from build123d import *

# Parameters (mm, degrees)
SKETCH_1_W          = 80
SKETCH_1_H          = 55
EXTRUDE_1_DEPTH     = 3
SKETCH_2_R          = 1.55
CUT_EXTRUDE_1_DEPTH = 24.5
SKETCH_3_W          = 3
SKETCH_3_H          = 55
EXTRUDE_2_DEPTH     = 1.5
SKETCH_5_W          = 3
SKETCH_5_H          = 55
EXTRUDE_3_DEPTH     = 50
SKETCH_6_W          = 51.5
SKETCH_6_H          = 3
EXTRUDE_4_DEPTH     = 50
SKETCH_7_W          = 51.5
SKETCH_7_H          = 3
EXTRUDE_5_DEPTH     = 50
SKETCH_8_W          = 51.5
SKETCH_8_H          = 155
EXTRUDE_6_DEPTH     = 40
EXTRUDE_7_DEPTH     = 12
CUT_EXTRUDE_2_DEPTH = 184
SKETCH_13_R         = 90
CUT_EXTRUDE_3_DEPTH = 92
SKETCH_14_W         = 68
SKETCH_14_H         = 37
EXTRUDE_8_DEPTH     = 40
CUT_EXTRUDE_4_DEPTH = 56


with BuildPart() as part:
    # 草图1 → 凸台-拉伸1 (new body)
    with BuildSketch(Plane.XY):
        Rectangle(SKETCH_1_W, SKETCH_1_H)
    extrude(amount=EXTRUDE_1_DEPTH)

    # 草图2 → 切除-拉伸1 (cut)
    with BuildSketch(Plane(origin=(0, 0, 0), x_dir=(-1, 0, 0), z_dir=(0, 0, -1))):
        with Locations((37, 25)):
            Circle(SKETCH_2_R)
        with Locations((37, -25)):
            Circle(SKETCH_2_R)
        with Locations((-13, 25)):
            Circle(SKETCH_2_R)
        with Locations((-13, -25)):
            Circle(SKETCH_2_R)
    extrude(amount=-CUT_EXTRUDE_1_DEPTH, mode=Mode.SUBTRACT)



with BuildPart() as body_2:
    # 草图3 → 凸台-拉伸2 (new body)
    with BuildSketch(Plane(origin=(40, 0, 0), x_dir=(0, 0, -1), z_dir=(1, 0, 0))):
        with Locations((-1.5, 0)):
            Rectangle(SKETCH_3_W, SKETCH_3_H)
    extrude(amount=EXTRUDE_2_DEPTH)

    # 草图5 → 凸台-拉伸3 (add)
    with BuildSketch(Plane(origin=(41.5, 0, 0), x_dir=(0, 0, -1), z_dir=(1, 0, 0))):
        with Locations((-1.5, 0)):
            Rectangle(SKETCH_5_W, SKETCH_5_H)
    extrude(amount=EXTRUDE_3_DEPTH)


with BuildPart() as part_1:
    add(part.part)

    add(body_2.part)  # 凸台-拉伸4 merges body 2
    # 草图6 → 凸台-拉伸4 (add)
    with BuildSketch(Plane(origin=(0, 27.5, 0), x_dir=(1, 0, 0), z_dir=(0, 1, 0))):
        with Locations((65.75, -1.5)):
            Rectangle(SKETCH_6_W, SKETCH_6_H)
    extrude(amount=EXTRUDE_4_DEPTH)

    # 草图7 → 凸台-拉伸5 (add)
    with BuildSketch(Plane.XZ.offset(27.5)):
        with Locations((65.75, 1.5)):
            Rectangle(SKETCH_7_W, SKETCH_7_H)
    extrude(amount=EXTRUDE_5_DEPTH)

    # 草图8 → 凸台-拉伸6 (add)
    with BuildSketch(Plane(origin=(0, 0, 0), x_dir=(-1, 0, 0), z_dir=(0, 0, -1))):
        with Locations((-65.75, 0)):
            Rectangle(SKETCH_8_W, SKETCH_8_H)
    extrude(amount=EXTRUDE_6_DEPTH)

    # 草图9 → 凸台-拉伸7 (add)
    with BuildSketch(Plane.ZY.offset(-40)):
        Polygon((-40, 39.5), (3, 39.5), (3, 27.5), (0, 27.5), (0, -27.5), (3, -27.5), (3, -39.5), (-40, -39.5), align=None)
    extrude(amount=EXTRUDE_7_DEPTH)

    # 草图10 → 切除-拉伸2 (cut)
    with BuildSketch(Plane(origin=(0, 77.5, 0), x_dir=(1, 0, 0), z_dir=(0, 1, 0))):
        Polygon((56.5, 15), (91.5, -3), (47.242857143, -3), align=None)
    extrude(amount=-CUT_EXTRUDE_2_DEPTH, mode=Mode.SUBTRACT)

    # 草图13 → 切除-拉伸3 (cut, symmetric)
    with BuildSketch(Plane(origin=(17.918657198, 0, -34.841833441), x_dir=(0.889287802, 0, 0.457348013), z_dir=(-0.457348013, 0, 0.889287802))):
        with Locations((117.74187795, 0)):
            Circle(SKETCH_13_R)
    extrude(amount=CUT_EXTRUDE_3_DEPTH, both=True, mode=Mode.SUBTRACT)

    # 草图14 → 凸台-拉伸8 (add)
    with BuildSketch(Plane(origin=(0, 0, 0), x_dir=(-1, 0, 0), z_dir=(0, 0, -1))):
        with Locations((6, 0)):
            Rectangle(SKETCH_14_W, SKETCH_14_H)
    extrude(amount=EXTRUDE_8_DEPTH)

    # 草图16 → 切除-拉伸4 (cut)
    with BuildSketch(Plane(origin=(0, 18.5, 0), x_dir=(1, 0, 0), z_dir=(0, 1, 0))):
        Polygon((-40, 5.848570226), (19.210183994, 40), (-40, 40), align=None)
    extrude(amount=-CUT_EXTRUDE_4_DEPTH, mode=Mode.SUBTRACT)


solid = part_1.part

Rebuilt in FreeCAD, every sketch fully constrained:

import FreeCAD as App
import Part
import Sketcher

V = App.Vector
Q = App.Units.Quantity

doc = App.newDocument("Part")
body = doc.addObject("PartDesign::Body", "Body")

sketch1 = body.newObject("Sketcher::SketchObject", "Sketch")
sketch1.AttachmentSupport = (doc.getObject("XY_Plane"), [""])
sketch1.MapMode = "FlatFace"
sketch1.addGeometry([
    Part.LineSegment(V(-40, 28, 0), V(-40, -28, 0)),
    Part.LineSegment(V(-40, -28, 0), V(40, -28, 0)),
    Part.LineSegment(V(40, -28, 0), V(40, 28, 0)),
    Part.LineSegment(V(40, 28, 0), V(-40, 28, 0)),
], False)
sketch1.addConstraint([
    Sketcher.Constraint("Coincident", 0, 2, 1, 1),
    Sketcher.Constraint("Coincident", 1, 2, 2, 1),
    Sketcher.Constraint("Coincident", 2, 2, 3, 1),
    Sketcher.Constraint("Coincident", 3, 2, 0, 1),
    Sketcher.Constraint("Vertical", 0),
    Sketcher.Constraint("Horizontal", 1),
    Sketcher.Constraint("Vertical", 2),
    Sketcher.Constraint("Horizontal", 3),
    Sketcher.Constraint("Symmetric", 0, 2, 2, 2, -1, 1),
    Sketcher.Constraint("DistanceX", 1, 1, 1, 2, Q("80 mm")),
    Sketcher.Constraint("DistanceY", 0, 2, 0, 1, Q("55 mm")),
])
pad1 = body.newObject("PartDesign::Pad", "Pad")
pad1.Profile = sketch1
pad1.Length = 3

sketch2 = body.newObject("Sketcher::SketchObject", "Sketch001")
sketch2.AttachmentSupport = (doc.getObject("XY_Plane"), [""])
sketch2.MapMode = "FlatFace"
sketch2.addGeometry([
    Part.Circle(V(-37, 25, 0), V(0, 0, 1), 1.6),
    Part.Circle(V(-37, -25, 0), V(0, 0, 1), 1.6),
    Part.Circle(V(13, 25, 0), V(0, 0, 1), 1.6),
    Part.Circle(V(13, -25, 0), V(0, 0, 1), 1.6),
], False)
sketch2.addConstraint([
    Sketcher.Constraint("Equal", 0, 1),
    Sketcher.Constraint("Equal", 1, 2),
    Sketcher.Constraint("Equal", 2, 3),
    Sketcher.Constraint("Symmetric", 0, 3, 1, 3, -1),
    Sketcher.Constraint("Symmetric", 2, 3, 3, 3, -1),
    Sketcher.Constraint("Horizontal", 0, 3, 2, 3),
    Sketcher.Constraint("Diameter", 0, Q("3.1 mm")),
    Sketcher.Constraint("DistanceX", 0, 3, -1, 1, Q("37 mm")),
    Sketcher.Constraint("DistanceY", -1, 1, 0, 3, Q("25 mm")),
    Sketcher.Constraint("DistanceX", -1, 1, 2, 3, Q("13 mm")),
])
pocket1 = body.newObject("PartDesign::Pocket", "Pocket")
pocket1.Profile = sketch2
pocket1.Length = 24.5
pocket1.Reversed = True
body2 = doc.addObject("PartDesign::Body", "Body001")

sketch3 = body2.newObject("Sketcher::SketchObject", "Sketch002")
sketch3.AttachmentSupport = (doc.getObject("YZ_Plane001"), [""])
sketch3.MapMode = "FlatFace"
sketch3.AttachmentOffset = App.Placement(V(0, 0, 40), App.Rotation())
sketch3.addGeometry([
    Part.LineSegment(V(27.5, 3, 0), V(-27.5, 3, 0)),
    Part.LineSegment(V(-27.5, 3, 0), V(-27.5, 0, 0)),
    Part.LineSegment(V(-27.5, 0, 0), V(27.5, 0, 0)),
    Part.LineSegment(V(27.5, 0, 0), V(27.5, 3, 0)),
], False)
sketch3.addConstraint([
    Sketcher.Constraint("Coincident", 0, 2, 1, 1),
    Sketcher.Constraint("Coincident", 1, 2, 2, 1),
    Sketcher.Constraint("Coincident", 2, 2, 3, 1),
    Sketcher.Constraint("Coincident", 3, 2, 0, 1),
    Sketcher.Constraint("Horizontal", 0),
    Sketcher.Constraint("Vertical", 1),
    Sketcher.Constraint("Horizontal", 2),
    Sketcher.Constraint("Vertical", 3),
    Sketcher.Constraint("Symmetric", 1, 2, 2, 2, -1, 1),
    Sketcher.Constraint("DistanceX", 0, 2, 0, 1, Q("55 mm")),
    Sketcher.Constraint("DistanceY", 1, 2, 1, 1, Q("3 mm")),
])
pad2 = body2.newObject("PartDesign::Pad", "Pad001")
pad2.Profile = sketch3
pad2.Length = 1.5

sketch4 = body2.newObject("Sketcher::SketchObject", "Sketch003")
sketch4.AttachmentSupport = (doc.getObject("YZ_Plane001"), [""])
sketch4.MapMode = "FlatFace"
sketch4.AttachmentOffset = App.Placement(V(0, 0, 41.5), App.Rotation())
sketch4.addGeometry([
    Part.LineSegment(V(27.5, 3, 0), V(-27.5, 3, 0)),
    Part.LineSegment(V(-27.5, 3, 0), V(-27.5, 0, 0)),
    Part.LineSegment(V(-27.5, 0, 0), V(27.5, 0, 0)),
    Part.LineSegment(V(27.5, 0, 0), V(27.5, 3, 0)),
], False)
sketch4.addConstraint([
    Sketcher.Constraint("Coincident", 0, 2, 1, 1),
    Sketcher.Constraint("Coincident", 1, 2, 2, 1),
    Sketcher.Constraint("Coincident", 2, 2, 3, 1),
    Sketcher.Constraint("Coincident", 3, 2, 0, 1),
    Sketcher.Constraint("Horizontal", 0),
    Sketcher.Constraint("Vertical", 1),
    Sketcher.Constraint("Horizontal", 2),
    Sketcher.Constraint("Vertical", 3),
    Sketcher.Constraint("Symmetric", 1, 2, 2, 2, -1, 1),
    Sketcher.Constraint("DistanceX", 0, 2, 0, 1, Q("55 mm")),
    Sketcher.Constraint("DistanceY", 1, 2, 1, 1, Q("3 mm")),
])
pad3 = body2.newObject("PartDesign::Pad", "Pad002")
pad3.Profile = sketch4
pad3.Length = 50
doc.recompute()

boolean = body.newObject("PartDesign::Boolean", "Boolean")
boolean.Type = "Fuse"
boolean.addObjects([body2])

sketch5 = body.newObject("Sketcher::SketchObject", "Sketch004")
sketch5.AttachmentSupport = (doc.getObject("XZ_Plane"), [""])
sketch5.MapMode = "FlatFace"
sketch5.AttachmentOffset = App.Placement(V(0, 0, -27.5), App.Rotation())
sketch5.addGeometry([
    Part.LineSegment(V(40, 0, 0), V(40, 3, 0)),
    Part.LineSegment(V(40, 3, 0), V(91.5, 3, 0)),
    Part.LineSegment(V(91.5, 3, 0), V(91.5, 0, 0)),
    Part.LineSegment(V(91.5, 0, 0), V(40, 0, 0)),
], False)
sketch5.addConstraint([
    Sketcher.Constraint("Coincident", 0, 2, 1, 1),
    Sketcher.Constraint("Coincident", 1, 2, 2, 1),
    Sketcher.Constraint("Coincident", 2, 2, 3, 1),
    Sketcher.Constraint("Coincident", 3, 2, 0, 1),
    Sketcher.Constraint("Vertical", 0),
    Sketcher.Constraint("Horizontal", 1),
    Sketcher.Constraint("Vertical", 2),
    Sketcher.Constraint("Horizontal", 3),
    Sketcher.Constraint("PointOnObject", 2, 2, -1),
    Sketcher.Constraint("DistanceY", 0, 1, 0, 2, Q("3 mm")),
    Sketcher.Constraint("DistanceX", 1, 1, 1, 2, Q("51.5 mm")),
    Sketcher.Constraint("DistanceX", -1, 1, 0, 2, Q("40 mm")),
])
pad4 = body.newObject("PartDesign::Pad", "Pad003")
pad4.Profile = sketch5
pad4.Length = 50
pad4.Reversed = True

sketch6 = body.newObject("Sketcher::SketchObject", "Sketch005")
sketch6.AttachmentSupport = (doc.getObject("XZ_Plane"), [""])
sketch6.MapMode = "FlatFace"
sketch6.AttachmentOffset = App.Placement(V(0, 0, 27.5), App.Rotation())
sketch6.addGeometry([
    Part.LineSegment(V(40, 3, 0), V(40, 0, 0)),
    Part.LineSegment(V(40, 0, 0), V(91.5, 0, 0)),
    Part.LineSegment(V(91.5, 0, 0), V(91.5, 3, 0)),
    Part.LineSegment(V(91.5, 3, 0), V(40, 3, 0)),
], False)
sketch6.addConstraint([
    Sketcher.Constraint("Coincident", 0, 2, 1, 1),
    Sketcher.Constraint("Coincident", 1, 2, 2, 1),
    Sketcher.Constraint("Coincident", 2, 2, 3, 1),
    Sketcher.Constraint("Coincident", 3, 2, 0, 1),
    Sketcher.Constraint("Vertical", 0),
    Sketcher.Constraint("Horizontal", 1),
    Sketcher.Constraint("Vertical", 2),
    Sketcher.Constraint("Horizontal", 3),
    Sketcher.Constraint("PointOnObject", 0, 2, -1),
    Sketcher.Constraint("DistanceY", 0, 2, 0, 1, Q("3 mm")),
    Sketcher.Constraint("DistanceX", 1, 1, 1, 2, Q("51.5 mm")),
    Sketcher.Constraint("DistanceX", -1, 1, 0, 2, Q("40 mm")),
])
pad5 = body.newObject("PartDesign::Pad", "Pad004")
pad5.Profile = sketch6
pad5.Length = 50

sketch7 = body.newObject("Sketcher::SketchObject", "Sketch006")
sketch7.AttachmentSupport = (doc.getObject("XY_Plane"), [""])
sketch7.MapMode = "FlatFace"
sketch7.addGeometry([
    Part.LineSegment(V(92, 78, 0), V(92, -78, 0)),
    Part.LineSegment(V(92, -78, 0), V(40, -78, 0)),
    Part.LineSegment(V(40, -78, 0), V(40, 78, 0)),
    Part.LineSegment(V(40, 78, 0), V(92, 78, 0)),
], False)
sketch7.addConstraint([
    Sketcher.Constraint("Coincident", 0, 2, 1, 1),
    Sketcher.Constraint("Coincident", 1, 2, 2, 1),
    Sketcher.Constraint("Coincident", 2, 2, 3, 1),
    Sketcher.Constraint("Coincident", 3, 2, 0, 1),
    Sketcher.Constraint("Vertical", 0),
    Sketcher.Constraint("Horizontal", 1),
    Sketcher.Constraint("Vertical", 2),
    Sketcher.Constraint("Horizontal", 3),
    Sketcher.Constraint("DistanceY", 0, 2, 0, 1, Q("155 mm")),
    Sketcher.Constraint("DistanceX", 1, 2, 1, 1, Q("51.5 mm")),
    Sketcher.Constraint("DistanceX", -1, 1, 1, 2, Q("40 mm")),
    Sketcher.Constraint("DistanceY", 0, 2, -1, 1, Q("77.5 mm")),
])
pad6 = body.newObject("PartDesign::Pad", "Pad005")
pad6.Profile = sketch7
pad6.Length = 40
pad6.Reversed = True

sketch8 = body.newObject("Sketcher::SketchObject", "Sketch007")
sketch8.AttachmentSupport = (doc.getObject("YZ_Plane"), [""])
sketch8.MapMode = "FlatFace"
sketch8.AttachmentOffset = App.Placement(V(0, 0, 40), App.Rotation())
sketch8.addGeometry([
    Part.LineSegment(V(39.5, 3, 0), V(39.5, -40, 0)),
    Part.LineSegment(V(39.5, -40, 0), V(-39.5, -40, 0)),
    Part.LineSegment(V(-39.5, -40, 0), V(-39.5, 3, 0)),
    Part.LineSegment(V(-39.5, 3, 0), V(-27.5, 3, 0)),
    Part.LineSegment(V(-27.5, 3, 0), V(-27.5, 0, 0)),
    Part.LineSegment(V(-27.5, 0, 0), V(27.5, 0, 0)),
    Part.LineSegment(V(27.5, 0, 0), V(27.5, 3, 0)),
    Part.LineSegment(V(27.5, 3, 0), V(39.5, 3, 0)),
], False)
sketch8.addConstraint([
    Sketcher.Constraint("Coincident", 0, 2, 1, 1),
    Sketcher.Constraint("Coincident", 1, 2, 2, 1),
    Sketcher.Constraint("Coincident", 2, 2, 3, 1),
    Sketcher.Constraint("Coincident", 3, 2, 4, 1),
    Sketcher.Constraint("Coincident", 4, 2, 5, 1),
    Sketcher.Constraint("Coincident", 5, 2, 6, 1),
    Sketcher.Constraint("Coincident", 6, 2, 7, 1),
    Sketcher.Constraint("Coincident", 7, 2, 0, 1),
    Sketcher.Constraint("Vertical", 0),
    Sketcher.Constraint("Horizontal", 1),
    Sketcher.Constraint("Vertical", 2),
    Sketcher.Constraint("Horizontal", 3),
    Sketcher.Constraint("Vertical", 4),
    Sketcher.Constraint("Horizontal", 5),
    Sketcher.Constraint("Vertical", 6),
    Sketcher.Constraint("Horizontal", 7),
    Sketcher.Constraint("Symmetric", 4, 2, 5, 2, -1, 1),
    Sketcher.Constraint("Symmetric", 2, 2, 7, 2, -2),
    Sketcher.Constraint("DistanceX", 1, 2, 1, 1, Q("79 mm")),
    Sketcher.Constraint("DistanceX", 3, 1, 3, 2, Q("12 mm")),
    Sketcher.Constraint("DistanceY", 0, 2, 0, 1, Q("43 mm")),
    Sketcher.Constraint("DistanceY", 4, 2, 4, 1, Q("3 mm")),
])
pad7 = body.newObject("PartDesign::Pad", "Pad006")
pad7.Profile = sketch8
pad7.Length = 12
pad7.Reversed = True

sketch9 = body.newObject("Sketcher::SketchObject", "Sketch008")
sketch9.AttachmentSupport = (doc.getObject("XZ_Plane"), [""])
sketch9.MapMode = "FlatFace"
sketch9.AttachmentOffset = App.Placement(V(0, 0, -77.5), App.Rotation())
sketch9.addGeometry([
    Part.LineSegment(V(92, 3, 0), V(56, -15, 0)),
    Part.LineSegment(V(56, -15, 0), V(47, 3, 0)),
    Part.LineSegment(V(47, 3, 0), V(92, 3, 0)),
], False)
sketch9.addConstraint([
    Sketcher.Constraint("Coincident", 0, 2, 1, 1),
    Sketcher.Constraint("Coincident", 1, 2, 2, 1),
    Sketcher.Constraint("Coincident", 2, 2, 0, 1),
    Sketcher.Constraint("Horizontal", 2),
    Sketcher.Constraint("Perpendicular", 0, 1),
    Sketcher.Constraint("DistanceY", 0, 2, -1, 1, Q("15 mm")),
    Sketcher.Constraint("DistanceY", -1, 1, 1, 2, Q("3 mm")),
    Sketcher.Constraint("DistanceX", 0, 2, 2, 2, Q("35 mm")),
    Sketcher.Constraint("DistanceX", -1, 1, 0, 2, Q("56.5 mm")),
])
pocket2 = body.newObject("PartDesign::Pocket", "Pocket001")
pocket2.Profile = sketch9
pocket2.Length = 184
pocket2.Reversed = True

sketch10 = body.newObject("Sketcher::SketchObject", "Sketch009")
sketch10.Placement = App.Placement(V(17.918657, 0, -34.841833), App.Rotation(V(0.889287802, 0, 0.457348013), V(0, 1, 0), V(-0.457348013, 0, 0.889287802), "ZXY"))
sketch10.addGeometry(Part.Circle(V(118, 0, 0), V(0, 0, 1), 90), False)
sketch10.addConstraint([
    Sketcher.Constraint("PointOnObject", 0, 3, -1),
    Sketcher.Constraint("Diameter", 0, Q("180 mm")),
    Sketcher.Constraint("DistanceX", -1, 1, 0, 3, Q("117.741878 mm")),
])
pocket3 = body.newObject("PartDesign::Pocket", "Pocket002")
pocket3.Profile = sketch10
pocket3.Length = 184
pocket3.Midplane = True

sketch11 = body.newObject("Sketcher::SketchObject", "Sketch010")
sketch11.AttachmentSupport = (doc.getObject("XY_Plane"), [""])
sketch11.MapMode = "FlatFace"
sketch11.addGeometry([
    Part.LineSegment(V(28, 18, 0), V(28, -18, 0)),
    Part.LineSegment(V(28, -18, 0), V(-40, -18, 0)),
    Part.LineSegment(V(-40, -18, 0), V(-40, 18, 0)),
    Part.LineSegment(V(-40, 18, 0), V(28, 18, 0)),
], False)
sketch11.addConstraint([
    Sketcher.Constraint("Coincident", 0, 2, 1, 1),
    Sketcher.Constraint("Coincident", 1, 2, 2, 1),
    Sketcher.Constraint("Coincident", 2, 2, 3, 1),
    Sketcher.Constraint("Coincident", 3, 2, 0, 1),
    Sketcher.Constraint("Vertical", 0),
    Sketcher.Constraint("Horizontal", 1),
    Sketcher.Constraint("Vertical", 2),
    Sketcher.Constraint("Horizontal", 3),
    Sketcher.Constraint("DistanceX", 1, 2, 1, 1, Q("68 mm")),
    Sketcher.Constraint("DistanceY", 0, 2, 0, 1, Q("37 mm")),
    Sketcher.Constraint("DistanceX", -1, 1, 0, 2, Q("28 mm")),
    Sketcher.Constraint("DistanceY", 0, 2, -1, 1, Q("18.5 mm")),
])
pad8 = body.newObject("PartDesign::Pad", "Pad007")
pad8.Profile = sketch11
pad8.Length = 40
pad8.Reversed = True

sketch12 = body.newObject("Sketcher::SketchObject", "Sketch011")
sketch12.AttachmentSupport = (doc.getObject("XZ_Plane"), [""])
sketch12.MapMode = "FlatFace"
sketch12.AttachmentOffset = App.Placement(V(0, 0, -18.5), App.Rotation())
sketch12.addGeometry([
    Part.LineSegment(V(-40, -6, 0), V(19, -40, 0)),
    Part.LineSegment(V(19, -40, 0), V(-40, -40, 0)),
    Part.LineSegment(V(-40, -40, 0), V(-40, -6, 0)),
], False)
sketch12.addConstraint([
    Sketcher.Constraint("Coincident", 0, 2, 1, 1),
    Sketcher.Constraint("Coincident", 1, 2, 2, 1),
    Sketcher.Constraint("Coincident", 2, 2, 0, 1),
    Sketcher.Constraint("Horizontal", 1),
    Sketcher.Constraint("Vertical", 2),
    Sketcher.Constraint("DistanceY", 0, 2, -1, 1, Q("40 mm")),
    Sketcher.Constraint("DistanceX", 1, 2, -1, 1, Q("40 mm")),
    Sketcher.Constraint("DistanceY", 2, 1, 2, 2, Q("34.15143 mm")),
    Sketcher.Constraint("DistanceX", 1, 2, 1, 1, Q("59.210184 mm")),
])
pocket4 = body.newObject("PartDesign::Pocket", "Pocket003")
pocket4.Profile = sketch12
pocket4.Length = 56
pocket4.Reversed = True

doc.recompute()
